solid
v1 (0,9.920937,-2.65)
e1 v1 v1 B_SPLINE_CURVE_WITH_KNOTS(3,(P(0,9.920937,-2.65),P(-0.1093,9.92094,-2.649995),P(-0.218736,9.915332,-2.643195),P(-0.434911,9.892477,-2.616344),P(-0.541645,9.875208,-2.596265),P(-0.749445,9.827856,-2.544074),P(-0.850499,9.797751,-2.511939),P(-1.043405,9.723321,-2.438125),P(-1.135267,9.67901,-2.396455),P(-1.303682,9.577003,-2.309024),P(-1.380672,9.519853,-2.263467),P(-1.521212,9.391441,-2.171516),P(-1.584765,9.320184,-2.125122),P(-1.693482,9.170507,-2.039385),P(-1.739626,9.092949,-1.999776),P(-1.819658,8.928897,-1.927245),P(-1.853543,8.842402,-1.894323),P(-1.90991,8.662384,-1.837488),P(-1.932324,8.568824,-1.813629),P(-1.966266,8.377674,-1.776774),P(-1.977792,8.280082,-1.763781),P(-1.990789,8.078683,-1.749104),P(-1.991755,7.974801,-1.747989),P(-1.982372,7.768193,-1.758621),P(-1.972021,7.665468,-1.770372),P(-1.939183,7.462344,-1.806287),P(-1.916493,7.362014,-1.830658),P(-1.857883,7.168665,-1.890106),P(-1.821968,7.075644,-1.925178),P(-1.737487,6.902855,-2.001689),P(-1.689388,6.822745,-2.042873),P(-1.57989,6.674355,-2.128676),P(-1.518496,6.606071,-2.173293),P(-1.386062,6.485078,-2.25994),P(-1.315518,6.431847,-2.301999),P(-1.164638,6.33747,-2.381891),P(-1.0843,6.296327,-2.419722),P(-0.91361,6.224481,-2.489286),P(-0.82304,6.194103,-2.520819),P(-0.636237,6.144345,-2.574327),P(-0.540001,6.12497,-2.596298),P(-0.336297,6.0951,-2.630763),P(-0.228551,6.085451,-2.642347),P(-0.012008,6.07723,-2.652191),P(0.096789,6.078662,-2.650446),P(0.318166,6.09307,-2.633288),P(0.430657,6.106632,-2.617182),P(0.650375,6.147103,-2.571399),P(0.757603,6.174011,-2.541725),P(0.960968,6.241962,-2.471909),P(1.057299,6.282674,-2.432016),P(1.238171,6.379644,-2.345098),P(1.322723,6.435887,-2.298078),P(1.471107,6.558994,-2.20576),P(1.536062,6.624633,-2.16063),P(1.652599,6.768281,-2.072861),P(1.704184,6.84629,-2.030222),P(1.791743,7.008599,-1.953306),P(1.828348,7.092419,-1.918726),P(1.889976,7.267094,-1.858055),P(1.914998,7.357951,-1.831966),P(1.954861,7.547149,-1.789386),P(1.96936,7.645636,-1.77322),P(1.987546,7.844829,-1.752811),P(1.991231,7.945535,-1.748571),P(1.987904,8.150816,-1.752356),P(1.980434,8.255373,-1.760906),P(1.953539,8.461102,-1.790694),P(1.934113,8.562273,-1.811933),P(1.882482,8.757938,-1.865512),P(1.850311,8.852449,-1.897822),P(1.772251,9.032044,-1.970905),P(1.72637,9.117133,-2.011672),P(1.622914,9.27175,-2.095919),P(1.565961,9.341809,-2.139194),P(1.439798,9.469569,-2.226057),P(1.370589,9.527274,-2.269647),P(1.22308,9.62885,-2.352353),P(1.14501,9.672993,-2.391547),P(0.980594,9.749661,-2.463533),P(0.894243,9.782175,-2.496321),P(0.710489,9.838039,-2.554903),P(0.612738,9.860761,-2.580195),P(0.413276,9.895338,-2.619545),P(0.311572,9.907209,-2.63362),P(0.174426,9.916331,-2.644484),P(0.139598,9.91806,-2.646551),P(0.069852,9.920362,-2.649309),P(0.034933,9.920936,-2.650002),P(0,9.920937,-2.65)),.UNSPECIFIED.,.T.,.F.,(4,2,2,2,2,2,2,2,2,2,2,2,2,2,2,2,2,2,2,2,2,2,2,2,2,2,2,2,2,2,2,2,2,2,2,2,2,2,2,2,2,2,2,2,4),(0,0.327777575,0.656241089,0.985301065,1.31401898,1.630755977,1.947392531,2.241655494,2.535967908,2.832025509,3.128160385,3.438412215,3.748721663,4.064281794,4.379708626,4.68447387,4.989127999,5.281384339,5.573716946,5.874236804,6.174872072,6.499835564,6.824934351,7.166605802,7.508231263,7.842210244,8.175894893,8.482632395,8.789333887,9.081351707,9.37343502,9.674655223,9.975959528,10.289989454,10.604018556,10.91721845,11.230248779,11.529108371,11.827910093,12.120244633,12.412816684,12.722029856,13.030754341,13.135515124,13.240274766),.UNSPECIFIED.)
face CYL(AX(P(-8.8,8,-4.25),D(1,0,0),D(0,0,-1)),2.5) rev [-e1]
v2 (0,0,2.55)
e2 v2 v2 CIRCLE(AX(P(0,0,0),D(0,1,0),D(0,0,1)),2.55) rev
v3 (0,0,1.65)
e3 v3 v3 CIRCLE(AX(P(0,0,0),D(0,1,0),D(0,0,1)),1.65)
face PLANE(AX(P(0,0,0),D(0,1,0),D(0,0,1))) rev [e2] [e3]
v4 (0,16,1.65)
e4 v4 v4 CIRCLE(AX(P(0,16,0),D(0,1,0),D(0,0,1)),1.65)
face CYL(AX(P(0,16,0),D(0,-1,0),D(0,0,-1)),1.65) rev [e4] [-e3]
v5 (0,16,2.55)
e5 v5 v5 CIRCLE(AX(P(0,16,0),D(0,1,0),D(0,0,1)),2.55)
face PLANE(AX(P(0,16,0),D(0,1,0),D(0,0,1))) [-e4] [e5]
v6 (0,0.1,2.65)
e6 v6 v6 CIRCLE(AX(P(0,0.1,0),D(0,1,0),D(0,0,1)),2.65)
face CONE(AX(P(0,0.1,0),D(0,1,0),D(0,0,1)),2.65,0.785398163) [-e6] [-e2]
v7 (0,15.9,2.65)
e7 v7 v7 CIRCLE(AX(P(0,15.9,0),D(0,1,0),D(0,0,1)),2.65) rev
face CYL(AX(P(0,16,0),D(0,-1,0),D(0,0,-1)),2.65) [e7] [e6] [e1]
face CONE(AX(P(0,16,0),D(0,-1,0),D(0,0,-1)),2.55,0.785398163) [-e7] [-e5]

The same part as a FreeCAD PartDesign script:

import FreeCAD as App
import Part
import Sketcher

V = App.Vector


def edges_at(feature, points):
    """Names of the edges that pass closest to the given points."""
    edges = feature.Shape.Edges
    near = lambda p: min(range(len(edges)), key=lambda i: edges[i].distToShape(Part.Vertex(*p))[0])
    return sorted({f"Edge{near(p) + 1}" for p in points})

doc = App.newDocument("Part")
params = doc.addObject("Spreadsheet::Sheet", "Params")
for row, (alias, value) in enumerate([
    ("sketch1_diameter", "5.3 mm"),
    ("sketch1_diameter2", "3.3 mm"),
    ("pad1_length", "16 mm"),
    ("chamfer_size", "0.1 mm"),
    ("sketch2_diameter", "5 mm"),
    ("pocket1_length", "17.6 mm"),
], start=1):
    params.set(f"A{row}", alias)
    params.set(f"B{row}", "=" + value)
    params.setAlias(f"B{row}", alias)

body = doc.addObject("PartDesign::Body", "Body")

# Sketch on XZ plane
sketch1 = doc.addObject("Sketcher::SketchObject", "Sketch")
body.addObject(sketch1)
sketch1.AttachmentSupport = (doc.XZ_Plane, [""])
sketch1.MapMode = "FlatFace"
sketch1.addGeometry([
    Part.Circle(V(0, 0, 0), V(0, 0, 1), 2.65),
    Part.Circle(V(0, 0, 0), V(0, 0, 1), 1.65),
], False)
sketch1.addConstraint([
    Sketcher.Constraint("Coincident", 0, 3, -1, 1),
    Sketcher.Constraint("Coincident", 1, 3, -1, 1),
    Sketcher.Constraint("Diameter", 0, 5.3),
    Sketcher.Constraint("Diameter", 1, 3.3),
])
sketch1.setExpression("Constraints[2]", "Params.sketch1_diameter")
sketch1.setExpression("Constraints[3]", "Params.sketch1_diameter2")
pad1 = doc.addObject("PartDesign::Pad", "Pad")
body.addObject(pad1)
pad1.Profile = sketch1
pad1.setExpression("Length", "Params.pad1_length")
pad1.Reversed = True
doc.recompute()

chamfer = doc.addObject("PartDesign::Chamfer", "Chamfer")
body.addObject(chamfer)
chamfer.Base = (pad1, edges_at(pad1, [(0, 0, -2.65), (0, 16, -2.65)]))
chamfer.setExpression("Size", "Params.chamfer_size")

# Sketch on YZ plane
sketch2 = doc.addObject("Sketcher::SketchObject", "Sketch001")
body.addObject(sketch2)
sketch2.AttachmentSupport = (doc.YZ_Plane, [""])
sketch2.MapMode = "FlatFace"
sketch2.addGeometry(Part.Circle(V(8, -4.25, 0), V(0, 0, 1), 2.5), False)
sketch2.addConstraint([
    Sketcher.Constraint("Diameter", 0, 5.0),
    Sketcher.Constraint("DistanceX", -1, 1, 0, 3, 8.0),
    Sketcher.Constraint("DistanceY", 0, 3, -1, 1, 4.25),
])
sketch2.setExpression("Constraints[0]", "Params.sketch2_diameter")
pocket1 = doc.addObject("PartDesign::Pocket", "Pocket")
body.addObject(pocket1)
pocket1.Profile = sketch2
pocket1.setExpression("Length", "Params.pocket1_length")
pocket1.Midplane = True

doc.recompute()
